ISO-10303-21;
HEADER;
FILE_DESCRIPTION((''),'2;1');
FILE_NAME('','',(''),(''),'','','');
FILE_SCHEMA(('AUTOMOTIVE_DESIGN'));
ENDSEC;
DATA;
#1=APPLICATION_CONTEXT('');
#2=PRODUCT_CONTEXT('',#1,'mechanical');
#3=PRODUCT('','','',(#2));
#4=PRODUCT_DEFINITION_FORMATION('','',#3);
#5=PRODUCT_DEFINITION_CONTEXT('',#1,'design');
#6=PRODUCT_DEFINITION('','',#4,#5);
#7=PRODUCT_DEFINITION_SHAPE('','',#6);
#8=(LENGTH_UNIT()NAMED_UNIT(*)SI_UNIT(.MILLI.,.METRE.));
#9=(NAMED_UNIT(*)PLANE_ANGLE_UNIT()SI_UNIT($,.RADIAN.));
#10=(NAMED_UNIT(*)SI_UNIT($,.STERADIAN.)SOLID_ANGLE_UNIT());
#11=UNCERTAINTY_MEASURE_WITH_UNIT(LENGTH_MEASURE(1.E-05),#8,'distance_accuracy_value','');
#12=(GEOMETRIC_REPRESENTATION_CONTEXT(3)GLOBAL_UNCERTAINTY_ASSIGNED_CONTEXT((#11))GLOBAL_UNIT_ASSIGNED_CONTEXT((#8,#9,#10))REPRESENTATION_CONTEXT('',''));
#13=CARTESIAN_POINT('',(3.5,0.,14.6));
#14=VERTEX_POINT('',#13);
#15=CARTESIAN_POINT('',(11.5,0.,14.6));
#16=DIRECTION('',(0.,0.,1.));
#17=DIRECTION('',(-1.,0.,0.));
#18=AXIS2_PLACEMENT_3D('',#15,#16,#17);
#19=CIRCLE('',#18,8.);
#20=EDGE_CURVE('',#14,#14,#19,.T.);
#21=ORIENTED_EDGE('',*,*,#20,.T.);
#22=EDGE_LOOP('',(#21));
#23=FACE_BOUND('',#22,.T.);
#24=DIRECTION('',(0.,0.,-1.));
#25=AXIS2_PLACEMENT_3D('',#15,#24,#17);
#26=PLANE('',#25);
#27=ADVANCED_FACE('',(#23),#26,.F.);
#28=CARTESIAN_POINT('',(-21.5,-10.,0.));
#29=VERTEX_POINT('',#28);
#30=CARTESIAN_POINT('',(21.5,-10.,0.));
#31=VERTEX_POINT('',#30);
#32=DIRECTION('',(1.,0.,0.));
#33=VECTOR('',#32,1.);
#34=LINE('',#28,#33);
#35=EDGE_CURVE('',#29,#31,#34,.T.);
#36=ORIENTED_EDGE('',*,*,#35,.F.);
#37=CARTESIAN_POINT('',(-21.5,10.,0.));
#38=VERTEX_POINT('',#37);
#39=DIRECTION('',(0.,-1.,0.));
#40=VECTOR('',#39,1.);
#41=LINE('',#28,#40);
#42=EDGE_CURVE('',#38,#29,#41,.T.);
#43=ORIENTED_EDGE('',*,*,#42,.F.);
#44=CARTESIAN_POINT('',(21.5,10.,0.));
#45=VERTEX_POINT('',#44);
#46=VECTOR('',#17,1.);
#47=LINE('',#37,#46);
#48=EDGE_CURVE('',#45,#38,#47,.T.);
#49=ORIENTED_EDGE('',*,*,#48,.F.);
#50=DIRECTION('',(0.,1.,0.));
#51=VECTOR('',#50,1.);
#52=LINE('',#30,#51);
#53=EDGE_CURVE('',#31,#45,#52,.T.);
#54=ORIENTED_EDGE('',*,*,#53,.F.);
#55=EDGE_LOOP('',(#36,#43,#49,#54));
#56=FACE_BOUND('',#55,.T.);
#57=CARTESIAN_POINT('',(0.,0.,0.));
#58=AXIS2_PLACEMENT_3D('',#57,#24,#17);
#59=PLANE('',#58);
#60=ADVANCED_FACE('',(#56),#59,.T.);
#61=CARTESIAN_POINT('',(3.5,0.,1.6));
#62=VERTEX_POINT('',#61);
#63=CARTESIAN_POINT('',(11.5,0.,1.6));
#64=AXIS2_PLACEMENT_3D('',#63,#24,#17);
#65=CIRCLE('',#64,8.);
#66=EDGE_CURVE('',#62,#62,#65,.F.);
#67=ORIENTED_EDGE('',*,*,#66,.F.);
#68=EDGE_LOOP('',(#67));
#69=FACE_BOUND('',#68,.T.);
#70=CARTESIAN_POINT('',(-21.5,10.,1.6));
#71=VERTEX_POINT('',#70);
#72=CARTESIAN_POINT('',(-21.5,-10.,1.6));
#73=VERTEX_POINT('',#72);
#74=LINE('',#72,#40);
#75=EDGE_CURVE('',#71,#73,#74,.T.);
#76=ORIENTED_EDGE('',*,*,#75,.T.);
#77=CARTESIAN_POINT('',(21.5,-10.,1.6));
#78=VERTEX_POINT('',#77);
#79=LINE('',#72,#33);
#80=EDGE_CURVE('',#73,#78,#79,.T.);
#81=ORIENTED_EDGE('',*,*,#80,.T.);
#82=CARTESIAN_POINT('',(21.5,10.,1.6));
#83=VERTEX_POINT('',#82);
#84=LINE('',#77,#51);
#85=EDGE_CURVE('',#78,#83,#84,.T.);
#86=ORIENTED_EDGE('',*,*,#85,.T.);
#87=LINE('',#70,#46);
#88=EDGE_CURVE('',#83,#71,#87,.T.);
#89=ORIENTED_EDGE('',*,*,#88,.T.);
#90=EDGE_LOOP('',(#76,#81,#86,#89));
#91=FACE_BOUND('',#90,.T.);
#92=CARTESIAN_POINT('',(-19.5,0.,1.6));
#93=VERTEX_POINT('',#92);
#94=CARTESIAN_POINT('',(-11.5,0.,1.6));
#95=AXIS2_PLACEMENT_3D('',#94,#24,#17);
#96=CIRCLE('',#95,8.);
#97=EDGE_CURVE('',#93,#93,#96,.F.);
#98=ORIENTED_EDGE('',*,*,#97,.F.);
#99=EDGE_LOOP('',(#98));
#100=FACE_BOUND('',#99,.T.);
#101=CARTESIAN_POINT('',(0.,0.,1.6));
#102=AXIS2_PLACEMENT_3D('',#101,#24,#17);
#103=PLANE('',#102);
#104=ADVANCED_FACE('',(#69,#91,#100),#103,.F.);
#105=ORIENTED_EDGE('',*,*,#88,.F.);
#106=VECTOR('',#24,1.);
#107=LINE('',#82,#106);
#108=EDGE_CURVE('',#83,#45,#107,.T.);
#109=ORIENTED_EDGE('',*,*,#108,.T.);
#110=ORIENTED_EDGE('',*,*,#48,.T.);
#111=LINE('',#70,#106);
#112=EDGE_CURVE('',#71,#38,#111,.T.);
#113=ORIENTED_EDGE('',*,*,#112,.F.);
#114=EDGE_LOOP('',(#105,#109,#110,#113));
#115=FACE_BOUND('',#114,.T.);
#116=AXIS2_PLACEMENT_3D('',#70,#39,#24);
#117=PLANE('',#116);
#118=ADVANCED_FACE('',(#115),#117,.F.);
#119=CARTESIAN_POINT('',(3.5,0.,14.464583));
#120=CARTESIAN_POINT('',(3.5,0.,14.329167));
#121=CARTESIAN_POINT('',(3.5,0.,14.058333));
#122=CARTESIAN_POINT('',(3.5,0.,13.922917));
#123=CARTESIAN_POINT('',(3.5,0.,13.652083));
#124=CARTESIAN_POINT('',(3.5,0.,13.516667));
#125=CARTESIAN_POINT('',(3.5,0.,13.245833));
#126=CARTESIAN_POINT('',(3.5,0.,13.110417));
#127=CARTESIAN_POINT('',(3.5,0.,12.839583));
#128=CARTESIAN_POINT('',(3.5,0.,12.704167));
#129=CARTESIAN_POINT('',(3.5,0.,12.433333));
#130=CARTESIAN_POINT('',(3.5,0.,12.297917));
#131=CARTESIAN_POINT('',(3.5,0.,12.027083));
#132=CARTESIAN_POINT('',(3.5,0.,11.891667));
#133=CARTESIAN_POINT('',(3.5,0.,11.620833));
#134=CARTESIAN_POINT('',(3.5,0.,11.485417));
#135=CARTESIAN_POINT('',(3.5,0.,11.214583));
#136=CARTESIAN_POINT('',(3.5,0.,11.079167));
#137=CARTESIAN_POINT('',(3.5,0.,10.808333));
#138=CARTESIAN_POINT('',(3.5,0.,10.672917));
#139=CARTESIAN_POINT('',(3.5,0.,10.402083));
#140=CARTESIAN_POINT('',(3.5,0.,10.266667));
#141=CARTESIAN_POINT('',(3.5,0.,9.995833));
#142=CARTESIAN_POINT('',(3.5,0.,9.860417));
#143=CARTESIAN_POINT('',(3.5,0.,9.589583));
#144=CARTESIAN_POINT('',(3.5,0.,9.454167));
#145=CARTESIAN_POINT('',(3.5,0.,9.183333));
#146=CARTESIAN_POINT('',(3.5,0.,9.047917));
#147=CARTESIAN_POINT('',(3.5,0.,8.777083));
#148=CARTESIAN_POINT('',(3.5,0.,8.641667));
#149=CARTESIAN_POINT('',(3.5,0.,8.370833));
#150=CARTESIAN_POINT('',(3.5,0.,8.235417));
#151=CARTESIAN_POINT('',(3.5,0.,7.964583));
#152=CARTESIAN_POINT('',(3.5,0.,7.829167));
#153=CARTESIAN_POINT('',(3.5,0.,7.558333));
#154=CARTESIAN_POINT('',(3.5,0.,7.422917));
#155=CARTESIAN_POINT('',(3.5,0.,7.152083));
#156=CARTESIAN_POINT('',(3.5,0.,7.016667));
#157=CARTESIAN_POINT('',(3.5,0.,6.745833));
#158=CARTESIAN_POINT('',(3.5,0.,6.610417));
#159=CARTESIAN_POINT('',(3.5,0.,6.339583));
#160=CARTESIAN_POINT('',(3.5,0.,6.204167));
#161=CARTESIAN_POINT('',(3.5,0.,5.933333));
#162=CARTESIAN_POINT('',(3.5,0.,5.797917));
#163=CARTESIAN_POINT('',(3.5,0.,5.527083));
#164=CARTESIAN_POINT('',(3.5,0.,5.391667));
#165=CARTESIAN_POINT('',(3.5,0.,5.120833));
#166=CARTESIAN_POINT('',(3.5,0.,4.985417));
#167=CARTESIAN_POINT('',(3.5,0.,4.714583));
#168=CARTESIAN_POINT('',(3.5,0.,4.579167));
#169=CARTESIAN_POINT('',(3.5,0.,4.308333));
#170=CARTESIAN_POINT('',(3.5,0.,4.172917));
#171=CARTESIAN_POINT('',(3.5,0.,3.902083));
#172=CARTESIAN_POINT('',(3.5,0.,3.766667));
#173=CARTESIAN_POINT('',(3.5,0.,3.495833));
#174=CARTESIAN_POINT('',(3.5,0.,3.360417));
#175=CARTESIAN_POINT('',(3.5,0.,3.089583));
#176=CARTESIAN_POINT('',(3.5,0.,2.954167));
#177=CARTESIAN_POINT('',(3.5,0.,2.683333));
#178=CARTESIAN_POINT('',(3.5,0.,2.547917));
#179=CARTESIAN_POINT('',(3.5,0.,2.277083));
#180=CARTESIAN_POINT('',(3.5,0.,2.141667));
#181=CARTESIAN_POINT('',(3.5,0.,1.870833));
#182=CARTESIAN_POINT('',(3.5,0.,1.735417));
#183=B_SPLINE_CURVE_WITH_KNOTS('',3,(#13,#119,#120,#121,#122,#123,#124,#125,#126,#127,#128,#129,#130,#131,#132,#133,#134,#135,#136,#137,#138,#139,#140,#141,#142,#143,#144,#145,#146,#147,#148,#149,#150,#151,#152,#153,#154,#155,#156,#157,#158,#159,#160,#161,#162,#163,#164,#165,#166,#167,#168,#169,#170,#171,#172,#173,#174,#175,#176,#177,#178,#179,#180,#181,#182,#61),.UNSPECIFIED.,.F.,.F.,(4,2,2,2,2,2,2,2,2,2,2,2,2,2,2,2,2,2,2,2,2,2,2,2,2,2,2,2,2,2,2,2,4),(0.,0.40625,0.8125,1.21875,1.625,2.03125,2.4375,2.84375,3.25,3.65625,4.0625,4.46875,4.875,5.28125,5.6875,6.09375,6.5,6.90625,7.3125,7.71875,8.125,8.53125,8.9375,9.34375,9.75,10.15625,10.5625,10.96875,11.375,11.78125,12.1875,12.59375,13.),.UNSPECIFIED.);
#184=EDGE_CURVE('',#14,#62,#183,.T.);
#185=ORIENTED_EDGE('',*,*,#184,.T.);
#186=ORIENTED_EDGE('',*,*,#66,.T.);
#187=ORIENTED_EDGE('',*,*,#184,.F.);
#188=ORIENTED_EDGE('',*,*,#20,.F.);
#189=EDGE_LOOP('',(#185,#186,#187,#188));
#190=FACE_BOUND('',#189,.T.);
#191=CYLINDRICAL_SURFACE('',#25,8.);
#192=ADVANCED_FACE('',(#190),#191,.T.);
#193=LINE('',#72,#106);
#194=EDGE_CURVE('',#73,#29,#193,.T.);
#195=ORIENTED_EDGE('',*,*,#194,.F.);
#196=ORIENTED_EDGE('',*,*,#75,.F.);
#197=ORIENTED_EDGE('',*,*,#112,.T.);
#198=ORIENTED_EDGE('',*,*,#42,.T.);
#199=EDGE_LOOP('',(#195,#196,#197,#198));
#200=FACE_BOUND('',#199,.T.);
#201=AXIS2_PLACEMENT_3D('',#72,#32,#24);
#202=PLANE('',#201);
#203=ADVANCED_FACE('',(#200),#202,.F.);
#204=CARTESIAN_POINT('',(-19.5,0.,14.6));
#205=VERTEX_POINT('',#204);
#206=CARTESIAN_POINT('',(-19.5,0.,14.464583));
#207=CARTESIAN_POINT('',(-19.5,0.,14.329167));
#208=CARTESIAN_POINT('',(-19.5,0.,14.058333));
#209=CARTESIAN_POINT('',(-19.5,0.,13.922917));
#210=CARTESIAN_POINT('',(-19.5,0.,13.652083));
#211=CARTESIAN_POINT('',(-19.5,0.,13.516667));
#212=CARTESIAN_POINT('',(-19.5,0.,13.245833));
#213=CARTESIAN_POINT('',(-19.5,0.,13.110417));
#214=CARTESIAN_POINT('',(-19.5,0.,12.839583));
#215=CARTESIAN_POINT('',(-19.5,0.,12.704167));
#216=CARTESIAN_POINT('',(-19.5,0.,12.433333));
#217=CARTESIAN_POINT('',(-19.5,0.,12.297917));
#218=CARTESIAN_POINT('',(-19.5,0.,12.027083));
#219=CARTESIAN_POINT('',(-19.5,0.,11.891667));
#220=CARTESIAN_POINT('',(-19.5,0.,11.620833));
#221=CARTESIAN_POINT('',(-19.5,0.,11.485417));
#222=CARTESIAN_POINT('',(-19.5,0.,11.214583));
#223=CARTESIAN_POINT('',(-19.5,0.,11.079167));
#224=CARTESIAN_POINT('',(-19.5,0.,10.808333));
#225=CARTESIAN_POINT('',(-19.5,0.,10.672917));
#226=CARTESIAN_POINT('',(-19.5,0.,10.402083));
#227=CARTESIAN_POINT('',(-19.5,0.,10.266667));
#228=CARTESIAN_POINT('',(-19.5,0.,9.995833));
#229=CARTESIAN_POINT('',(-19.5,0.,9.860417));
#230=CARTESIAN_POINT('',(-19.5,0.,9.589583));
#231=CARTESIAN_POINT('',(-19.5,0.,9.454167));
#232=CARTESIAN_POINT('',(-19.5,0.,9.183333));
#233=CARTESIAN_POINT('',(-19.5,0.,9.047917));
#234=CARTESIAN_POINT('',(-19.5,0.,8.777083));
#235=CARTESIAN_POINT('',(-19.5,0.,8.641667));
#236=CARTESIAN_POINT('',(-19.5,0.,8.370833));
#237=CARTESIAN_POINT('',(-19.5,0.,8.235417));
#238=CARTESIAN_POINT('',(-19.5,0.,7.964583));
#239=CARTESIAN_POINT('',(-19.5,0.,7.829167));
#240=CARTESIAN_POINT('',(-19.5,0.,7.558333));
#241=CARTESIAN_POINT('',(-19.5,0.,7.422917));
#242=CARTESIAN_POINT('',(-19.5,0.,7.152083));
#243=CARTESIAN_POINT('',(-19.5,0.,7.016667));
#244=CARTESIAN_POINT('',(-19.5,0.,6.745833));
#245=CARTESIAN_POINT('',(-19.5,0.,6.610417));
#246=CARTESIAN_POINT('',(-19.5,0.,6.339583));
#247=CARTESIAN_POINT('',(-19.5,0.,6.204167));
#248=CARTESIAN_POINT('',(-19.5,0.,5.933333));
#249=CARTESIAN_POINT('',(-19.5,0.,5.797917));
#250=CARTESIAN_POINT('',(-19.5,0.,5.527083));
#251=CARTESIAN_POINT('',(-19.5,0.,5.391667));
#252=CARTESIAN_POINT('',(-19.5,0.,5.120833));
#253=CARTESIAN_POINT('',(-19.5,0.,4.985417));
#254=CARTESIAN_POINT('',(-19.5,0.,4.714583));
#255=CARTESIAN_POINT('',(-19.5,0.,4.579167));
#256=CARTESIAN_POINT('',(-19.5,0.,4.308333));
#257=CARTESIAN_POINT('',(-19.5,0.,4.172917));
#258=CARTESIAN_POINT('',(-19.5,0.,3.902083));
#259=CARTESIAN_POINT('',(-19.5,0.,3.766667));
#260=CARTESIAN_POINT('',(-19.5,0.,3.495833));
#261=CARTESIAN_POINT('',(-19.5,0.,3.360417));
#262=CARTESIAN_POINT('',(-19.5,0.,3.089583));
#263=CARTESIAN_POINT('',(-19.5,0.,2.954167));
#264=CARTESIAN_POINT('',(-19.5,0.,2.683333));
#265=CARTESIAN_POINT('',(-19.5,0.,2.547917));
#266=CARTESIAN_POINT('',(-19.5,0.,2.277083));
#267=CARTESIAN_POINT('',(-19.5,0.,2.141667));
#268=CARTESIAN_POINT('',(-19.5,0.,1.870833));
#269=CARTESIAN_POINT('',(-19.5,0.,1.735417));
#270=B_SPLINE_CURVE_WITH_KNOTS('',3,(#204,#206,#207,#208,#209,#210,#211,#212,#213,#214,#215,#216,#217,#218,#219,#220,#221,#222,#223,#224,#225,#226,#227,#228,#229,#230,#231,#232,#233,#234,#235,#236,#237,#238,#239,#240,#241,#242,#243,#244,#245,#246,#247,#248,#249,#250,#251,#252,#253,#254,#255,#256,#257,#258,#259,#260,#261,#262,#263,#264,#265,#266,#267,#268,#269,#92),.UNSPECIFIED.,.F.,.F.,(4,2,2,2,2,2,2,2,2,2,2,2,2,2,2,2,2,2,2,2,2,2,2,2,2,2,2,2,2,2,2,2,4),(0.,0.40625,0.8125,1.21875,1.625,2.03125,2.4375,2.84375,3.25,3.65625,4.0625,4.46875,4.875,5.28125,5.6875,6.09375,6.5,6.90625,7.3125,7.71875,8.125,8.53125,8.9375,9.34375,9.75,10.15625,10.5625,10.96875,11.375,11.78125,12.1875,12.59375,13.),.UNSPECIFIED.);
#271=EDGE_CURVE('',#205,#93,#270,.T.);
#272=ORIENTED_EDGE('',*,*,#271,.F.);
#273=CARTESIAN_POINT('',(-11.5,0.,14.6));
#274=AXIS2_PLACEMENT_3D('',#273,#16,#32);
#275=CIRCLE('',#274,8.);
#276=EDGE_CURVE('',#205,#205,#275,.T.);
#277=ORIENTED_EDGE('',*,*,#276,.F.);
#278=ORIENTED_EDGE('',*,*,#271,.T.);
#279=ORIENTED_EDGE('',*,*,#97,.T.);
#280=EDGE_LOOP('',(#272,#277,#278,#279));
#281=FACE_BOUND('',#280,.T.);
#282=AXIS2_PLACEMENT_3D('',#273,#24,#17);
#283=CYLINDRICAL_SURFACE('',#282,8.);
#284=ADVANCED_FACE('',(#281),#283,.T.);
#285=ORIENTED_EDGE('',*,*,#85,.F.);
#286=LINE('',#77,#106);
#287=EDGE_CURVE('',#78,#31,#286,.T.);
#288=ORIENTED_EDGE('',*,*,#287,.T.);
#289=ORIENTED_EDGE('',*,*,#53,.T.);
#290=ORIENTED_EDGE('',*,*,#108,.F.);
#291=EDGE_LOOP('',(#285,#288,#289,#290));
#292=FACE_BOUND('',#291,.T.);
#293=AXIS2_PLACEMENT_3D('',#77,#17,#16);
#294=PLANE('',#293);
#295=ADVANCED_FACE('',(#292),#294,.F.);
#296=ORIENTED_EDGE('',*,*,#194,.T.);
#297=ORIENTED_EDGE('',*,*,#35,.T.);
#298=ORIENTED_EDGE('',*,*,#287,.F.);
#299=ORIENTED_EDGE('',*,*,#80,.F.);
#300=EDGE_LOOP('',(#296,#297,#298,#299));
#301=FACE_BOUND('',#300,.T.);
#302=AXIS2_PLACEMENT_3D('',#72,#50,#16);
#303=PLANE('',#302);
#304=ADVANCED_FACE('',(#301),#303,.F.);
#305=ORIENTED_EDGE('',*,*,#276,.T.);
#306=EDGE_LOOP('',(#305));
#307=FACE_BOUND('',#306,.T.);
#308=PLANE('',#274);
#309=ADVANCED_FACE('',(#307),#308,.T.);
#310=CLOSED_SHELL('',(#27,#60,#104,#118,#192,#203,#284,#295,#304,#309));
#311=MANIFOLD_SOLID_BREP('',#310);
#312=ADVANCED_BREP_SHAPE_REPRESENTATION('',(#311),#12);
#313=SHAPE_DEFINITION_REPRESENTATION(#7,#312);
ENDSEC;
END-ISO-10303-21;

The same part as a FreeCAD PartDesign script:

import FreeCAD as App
import Part
import Sketcher

V = App.Vector
Q = App.Units.Quantity


def add_polygon(sketch, points):
    """Adds a closed chain of lines whose ends are joined by coincident constraints."""
    first, n = sketch.GeometryCount, len(points)
    for a, b in zip(points, points[1:] + points[:1]):
        sketch.addGeometry(Part.LineSegment(App.Vector(*a, 0), App.Vector(*b, 0)), False)
    for i in range(n):
        sketch.addConstraint(Sketcher.Constraint("Coincident", first + i, 2, first + (i + 1) % n, 1))

doc = App.newDocument("Part")
body = doc.addObject("PartDesign::Body", "Body")

# Sketch on XY plane
sketch1 = body.newObject("Sketcher::SketchObject", "Sketch")
sketch1.AttachmentSupport = (doc.getObject("XY_Plane"), [""])
sketch1.MapMode = "FlatFace"
add_polygon(sketch1, [(-22, 10), (-22, -10), (22, -10), (22, 10)])  # lines 0-3
sketch1.addConstraint(Sketcher.Constraint("Vertical", 0))
sketch1.addConstraint(Sketcher.Constraint("Horizontal", 1))
sketch1.addConstraint(Sketcher.Constraint("Vertical", 2))
sketch1.addConstraint(Sketcher.Constraint("Horizontal", 3))
sketch1.addConstraint(Sketcher.Constraint("Symmetric", 0, 2, 2, 2, -1, 1))
sketch1.addConstraint(Sketcher.Constraint("DistanceX", 1, 1, 1, 2, Q("43 mm")))
sketch1.addConstraint(Sketcher.Constraint("DistanceY", 0, 2, 0, 1, Q("20 mm")))
pad1 = body.newObject("PartDesign::Pad", "Pad")
pad1.Profile = sketch1
pad1.Length = 1.6

# Sketch on XY plane
sketch2 = body.newObject("Sketcher::SketchObject", "Sketch001")
sketch2.AttachmentSupport = (doc.getObject("XY_Plane"), [""])
sketch2.MapMode = "FlatFace"
sketch2.AttachmentOffset = App.Placement(V(0, 0, 1.6), App.Rotation())
sketch2.addGeometry(Part.Circle(V(-12, 0, 0), V(0, 0, 1), 8), False)
sketch2.addGeometry(Part.Circle(V(12, 0, 0), V(0, 0, 1), 8), False)
sketch2.addConstraint(Sketcher.Constraint("Equal", 0, 1))
sketch2.addConstraint(Sketcher.Constraint("Symmetric", 0, 3, 1, 3, -1, 1))
sketch2.addConstraint(Sketcher.Constraint("PointOnObject", 0, 3, -1))
sketch2.addConstraint(Sketcher.Constraint("Diameter", 0, Q("16 mm")))
sketch2.addConstraint(Sketcher.Constraint("DistanceX", 0, 3, 1, 3, Q("23 mm")))
pad2 = body.newObject("PartDesign::Pad", "Pad001")
pad2.Profile = sketch2
pad2.Length = 13

doc.recompute()
